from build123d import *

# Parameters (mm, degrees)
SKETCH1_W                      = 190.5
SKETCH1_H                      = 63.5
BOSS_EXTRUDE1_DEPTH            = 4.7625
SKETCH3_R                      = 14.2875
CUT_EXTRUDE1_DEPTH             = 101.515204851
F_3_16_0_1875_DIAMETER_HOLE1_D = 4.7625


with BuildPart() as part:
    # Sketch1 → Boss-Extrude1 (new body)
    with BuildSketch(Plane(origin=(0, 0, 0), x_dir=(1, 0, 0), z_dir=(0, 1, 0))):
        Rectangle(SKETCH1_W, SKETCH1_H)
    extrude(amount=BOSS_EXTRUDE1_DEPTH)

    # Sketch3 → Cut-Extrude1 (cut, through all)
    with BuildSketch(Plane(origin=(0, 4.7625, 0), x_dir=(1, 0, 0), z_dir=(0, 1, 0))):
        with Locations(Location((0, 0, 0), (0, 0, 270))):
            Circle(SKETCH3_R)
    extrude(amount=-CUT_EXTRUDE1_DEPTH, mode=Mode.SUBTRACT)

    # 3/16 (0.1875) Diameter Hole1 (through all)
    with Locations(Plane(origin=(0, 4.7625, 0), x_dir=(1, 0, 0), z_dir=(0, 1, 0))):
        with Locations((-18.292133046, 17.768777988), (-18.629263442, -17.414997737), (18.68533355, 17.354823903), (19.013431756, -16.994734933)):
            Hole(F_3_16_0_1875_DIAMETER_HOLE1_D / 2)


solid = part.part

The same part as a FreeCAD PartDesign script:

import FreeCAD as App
import Part
import Sketcher
Q = App.Units.Quantity

doc = App.newDocument("Part")
body = doc.addObject("PartDesign::Body", "Body")

# Sketch on XZ plane
sketch1 = doc.addObject("Sketcher::SketchObject", "Sketch")
body.addObject(sketch1)
sketch1.AttachmentSupport = (doc.XZ_Plane, [""])
sketch1.MapMode = "FlatFace"
sketch1.addGeometry([
    Part.LineSegment(App.Vector(-95.25, -31.75, 0), App.Vector(-95.25, 31.75, 0)),
    Part.LineSegment(App.Vector(-95.25, 31.75, 0), App.Vector(95.25, 31.75, 0)),
    Part.LineSegment(App.Vector(95.25, 31.75, 0), App.Vector(95.25, -31.75, 0)),
    Part.LineSegment(App.Vector(95.25, -31.75, 0), App.Vector(-95.25, -31.75, 0)),
], False)
sketch1.addConstraint([
    Sketcher.Constraint("Coincident", 0, 2, 1, 1),
    Sketcher.Constraint("Coincident", 1, 2, 2, 1),
    Sketcher.Constraint("Coincident", 2, 2, 3, 1),
    Sketcher.Constraint("Coincident", 3, 2, 0, 1),
    Sketcher.Constraint("Vertical", 0),
    Sketcher.Constraint("Horizontal", 1),
    Sketcher.Constraint("Vertical", 2),
    Sketcher.Constraint("Horizontal", 3),
    Sketcher.Constraint("Symmetric", 0, 2, 2, 2, -1, 1),
    Sketcher.Constraint("DistanceX", 1, 1, 1, 2, Q("7.5 in")),
    Sketcher.Constraint("DistanceY", 0, 1, 0, 2, Q("2.5 in")),
])
pad1 = doc.addObject("PartDesign::Pad", "Pad")
body.addObject(pad1)
pad1.Profile = sketch1
pad1.Length = Q("0.1875 in")
pad1.Reversed = True

# Sketch on XZ plane
sketch2 = doc.addObject("Sketcher::SketchObject", "Sketch001")
body.addObject(sketch2)
sketch2.AttachmentSupport = (doc.XZ_Plane, [""])
sketch2.MapMode = "FlatFace"
sketch2.AttachmentOffset = App.Placement(App.Vector(0, 0, -0.1875 * 25.4), App.Rotation())
sketch2.addGeometry(Part.Circle(App.Vector(0, 0, 0), App.Vector(0, 0, 1), 14.2875), False)
sketch2.addConstraint([
    Sketcher.Constraint("Coincident", 0, 3, -1, 1),
    Sketcher.Constraint("Diameter", 0, Q("1.125 in")),
])
pocket1 = doc.addObject("PartDesign::Pocket", "Pocket")
body.addObject(pocket1)
pocket1.Profile = sketch2
pocket1.Type = "ThroughAll"
pocket1.Reversed = True

# Sketch on XZ plane
sketch3 = doc.addObject("Sketcher::SketchObject", "Sketch002")
body.addObject(sketch3)
sketch3.AttachmentSupport = (doc.XZ_Plane, [""])
sketch3.MapMode = "FlatFace"
sketch3.AttachmentOffset = App.Placement(App.Vector(0, 0, -0.1875 * 25.4), App.Rotation())
sketch3.addGeometry([
    Part.Circle(App.Vector(-18.292133, -17.768778, 0), App.Vector(0, 0, 1), 2.38125),
    Part.Circle(App.Vector(-18.629263, 17.414998, 0), App.Vector(0, 0, 1), 2.38125),
    Part.Circle(App.Vector(18.685334, -17.354824, 0), App.Vector(0, 0, 1), 2.38125),
    Part.Circle(App.Vector(19.013432, 16.994735, 0), App.Vector(0, 0, 1), 2.38125),
], False)
sketch3.addConstraint([
    Sketcher.Constraint("Equal", 0, 1),
    Sketcher.Constraint("Equal", 1, 2),
    Sketcher.Constraint("Equal", 2, 3),
    Sketcher.Constraint("Diameter", 0, Q("0.1875 in")),
    Sketcher.Constraint("DistanceX", 2, 3, 3, 3, 0.328098),
    Sketcher.Constraint("DistanceX", -1, 1, 3, 3, 19.013432),
    Sketcher.Constraint("DistanceX", 1, 3, 0, 3, 0.33713),
    Sketcher.Constraint("DistanceY", 2, 3, 1, 3, 34.769822),
    Sketcher.Constraint("DistanceY", 2, 3, 3, 3, 34.349559),
    Sketcher.Constraint("DistanceX", 0, 3, -1, 1, 18.292133),
    Sketcher.Constraint("DistanceY", 0, 3, -1, 1, 17.768778),
    Sketcher.Constraint("DistanceY", -1, 1, 1, 3, 17.414998),
])
doc.recompute()
hole = doc.addObject("PartDesign::Hole", "Hole")
body.addObject(hole)
hole.Profile = sketch3
hole.ThreadType = "None"
hole.Diameter = Q("0.1875 in")
hole.DepthType = "ThroughAll"
hole.Reversed = True

doc.recompute()
